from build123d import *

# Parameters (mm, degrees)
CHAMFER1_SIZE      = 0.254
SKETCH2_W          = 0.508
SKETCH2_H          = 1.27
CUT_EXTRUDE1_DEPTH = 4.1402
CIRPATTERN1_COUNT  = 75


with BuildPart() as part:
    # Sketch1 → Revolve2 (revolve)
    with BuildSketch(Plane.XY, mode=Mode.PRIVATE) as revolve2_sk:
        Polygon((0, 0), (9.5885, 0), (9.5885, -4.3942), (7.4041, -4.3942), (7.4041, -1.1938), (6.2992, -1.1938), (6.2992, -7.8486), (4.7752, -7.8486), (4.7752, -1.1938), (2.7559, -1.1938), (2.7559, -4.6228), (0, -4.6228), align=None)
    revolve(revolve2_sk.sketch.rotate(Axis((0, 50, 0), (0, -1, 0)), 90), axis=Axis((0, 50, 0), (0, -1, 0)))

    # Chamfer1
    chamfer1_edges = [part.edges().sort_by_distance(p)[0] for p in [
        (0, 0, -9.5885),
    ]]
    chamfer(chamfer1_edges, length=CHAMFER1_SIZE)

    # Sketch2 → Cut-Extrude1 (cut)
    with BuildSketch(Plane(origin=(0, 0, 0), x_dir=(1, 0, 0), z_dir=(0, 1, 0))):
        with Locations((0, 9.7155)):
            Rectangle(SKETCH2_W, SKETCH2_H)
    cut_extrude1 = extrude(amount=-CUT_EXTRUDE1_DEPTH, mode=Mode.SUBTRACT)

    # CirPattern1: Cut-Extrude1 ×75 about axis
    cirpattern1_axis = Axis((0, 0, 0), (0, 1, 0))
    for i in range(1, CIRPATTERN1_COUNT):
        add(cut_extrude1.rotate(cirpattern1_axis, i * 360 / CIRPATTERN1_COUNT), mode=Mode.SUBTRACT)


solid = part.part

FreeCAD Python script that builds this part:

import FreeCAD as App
import Part
import Sketcher
Q = App.Units.Quantity


def edges_at(feature, points):
    """Names of the edges that pass closest to the given points."""
    edges = feature.Shape.Edges
    near = lambda p: min(range(len(edges)), key=lambda i: edges[i].distToShape(Part.Vertex(*p))[0])
    return sorted({f"Edge{near(p) + 1}" for p in points})

doc = App.newDocument("Part")
body = doc.addObject("PartDesign::Body", "Body")

sketch1 = doc.addObject("Sketcher::SketchObject", "Sketch")
body.addObject(sketch1)
sketch1.AttachmentSupport = (doc.XY_Plane, [""])
sketch1.MapMode = "FlatFace"
sketch1.addGeometry([
    Part.LineSegment(App.Vector(9.6, 0, 0), App.Vector(0, 0, 0)),
    Part.LineSegment(App.Vector(0, 0, 0), App.Vector(0, -4.6, 0)),
    Part.LineSegment(App.Vector(0, -4.6, 0), App.Vector(2.8, -4.6, 0)),
    Part.LineSegment(App.Vector(2.8, -4.6, 0), App.Vector(2.8, -1.2, 0)),
    Part.LineSegment(App.Vector(2.8, -1.2, 0), App.Vector(4.8, -1.2, 0)),
    Part.LineSegment(App.Vector(4.8, -1.2, 0), App.Vector(4.8, -7.8, 0)),
    Part.LineSegment(App.Vector(4.8, -7.8, 0), App.Vector(6.3, -7.8, 0)),
    Part.LineSegment(App.Vector(6.3, -7.8, 0), App.Vector(6.3, -1.2, 0)),
    Part.LineSegment(App.Vector(6.3, -1.2, 0), App.Vector(7.4, -1.2, 0)),
    Part.LineSegment(App.Vector(7.4, -1.2, 0), App.Vector(7.4, -4.4, 0)),
    Part.LineSegment(App.Vector(7.4, -4.4, 0), App.Vector(9.6, -4.4, 0)),
    Part.LineSegment(App.Vector(9.6, -4.4, 0), App.Vector(9.6, 0, 0)),
], False)
sketch1.addConstraint([
    Sketcher.Constraint("Coincident", 0, 2, 1, 1),
    Sketcher.Constraint("Coincident", 1, 2, 2, 1),
    Sketcher.Constraint("Coincident", 2, 2, 3, 1),
    Sketcher.Constraint("Coincident", 3, 2, 4, 1),
    Sketcher.Constraint("Coincident", 4, 2, 5, 1),
    Sketcher.Constraint("Coincident", 5, 2, 6, 1),
    Sketcher.Constraint("Coincident", 6, 2, 7, 1),
    Sketcher.Constraint("Coincident", 7, 2, 8, 1),
    Sketcher.Constraint("Coincident", 8, 2, 9, 1),
    Sketcher.Constraint("Coincident", 9, 2, 10, 1),
    Sketcher.Constraint("Coincident", 10, 2, 11, 1),
    Sketcher.Constraint("Coincident", 11, 2, 0, 1),
    Sketcher.Constraint("Horizontal", 0),
    Sketcher.Constraint("Vertical", 1),
    Sketcher.Constraint("Horizontal", 2),
    Sketcher.Constraint("Vertical", 3),
    Sketcher.Constraint("Horizontal", 4),
    Sketcher.Constraint("Vertical", 5),
    Sketcher.Constraint("Horizontal", 6),
    Sketcher.Constraint("Vertical", 7),
    Sketcher.Constraint("Horizontal", 8),
    Sketcher.Constraint("Vertical", 9),
    Sketcher.Constraint("Horizontal", 10),
    Sketcher.Constraint("Vertical", 11),
    Sketcher.Constraint("Coincident", 0, 2, -1, 1),
    Sketcher.Constraint("Horizontal", 4, 2, 7, 2),
    Sketcher.Constraint("DistanceX", 6, 1, 6, 2, Q("0.06 in")),
    Sketcher.Constraint("DistanceX", 10, 1, 10, 2, Q("0.086 in")),
    Sketcher.Constraint("DistanceY", 1, 2, 1, 1, Q("0.182 in")),
    Sketcher.Constraint("DistanceY", 3, 1, 3, 2, Q("0.135 in")),
    Sketcher.Constraint("DistanceY", 5, 2, 5, 1, Q("0.262 in")),
    Sketcher.Constraint("DistanceY", 9, 2, 9, 1, Q("0.126 in")),
    Sketcher.Constraint("DistanceX", 0, 2, 0, 1, Q("0.3775 in")),
    Sketcher.Constraint("DistanceX", 2, 1, 2, 2, Q("0.1085 in")),
    Sketcher.Constraint("DistanceX", 4, 1, 4, 2, Q("0.0795 in")),
])
revolution = doc.addObject("PartDesign::Revolution", "Revolution")
body.addObject(revolution)
revolution.Profile = sketch1
revolution.ReferenceAxis = (sketch1, ["V_Axis"])
revolution.Angle = 360
doc.recompute()

chamfer = doc.addObject("PartDesign::Chamfer", "Chamfer")
body.addObject(chamfer)
chamfer.Base = (revolution, edges_at(revolution, [(0, 0, -9.588)]))
chamfer.Size = Q("0.01 in")

sketch2 = doc.addObject("Sketcher::SketchObject", "Sketch001")
body.addObject(sketch2)
sketch2.AttachmentSupport = (doc.XZ_Plane, [""])
sketch2.MapMode = "FlatFace"
sketch2.addGeometry([
    Part.LineSegment(App.Vector(-0.3, -10.4, 0), App.Vector(-0.3, -9.1, 0)),
    Part.LineSegment(App.Vector(-0.3, -9.1, 0), App.Vector(0.3, -9.1, 0)),
    Part.LineSegment(App.Vector(0.3, -9.1, 0), App.Vector(0.3, -10.4, 0)),
    Part.LineSegment(App.Vector(0.3, -10.4, 0), App.Vector(-0.3, -10.4, 0)),
], False)
sketch2.addConstraint([
    Sketcher.Constraint("Coincident", 0, 2, 1, 1),
    Sketcher.Constraint("Coincident", 1, 2, 2, 1),
    Sketcher.Constraint("Coincident", 2, 2, 3, 1),
    Sketcher.Constraint("Coincident", 3, 2, 0, 1),
    Sketcher.Constraint("Vertical", 0),
    Sketcher.Constraint("Horizontal", 1),
    Sketcher.Constraint("Vertical", 2),
    Sketcher.Constraint("Horizontal", 3),
    Sketcher.Constraint("DistanceX", 1, 1, 1, 2, Q("0.02 in")),
    Sketcher.Constraint("DistanceY", 0, 1, 0, 2, Q("0.05 in")),
    Sketcher.Constraint("DistanceX", 0, 2, -1, 1, Q("0.01 in")),
    Sketcher.Constraint("DistanceY", 0, 2, -1, 1, Q("0.3575 in")),
])
pocket1 = doc.addObject("PartDesign::Pocket", "Pocket")
body.addObject(pocket1)
pocket1.Profile = sketch2
pocket1.Length = Q("0.163 in")
pocket1.Reversed = True
doc.recompute()

polarpattern = doc.addObject("PartDesign::PolarPattern", "PolarPattern")
body.addObject(polarpattern)
polarpattern.Originals = [pocket1]
polarpattern.Axis = (doc.Y_Axis, [""])
polarpattern.Angle = 360
polarpattern.Occurrences = 75
body.Tip = polarpattern

doc.recompute()
